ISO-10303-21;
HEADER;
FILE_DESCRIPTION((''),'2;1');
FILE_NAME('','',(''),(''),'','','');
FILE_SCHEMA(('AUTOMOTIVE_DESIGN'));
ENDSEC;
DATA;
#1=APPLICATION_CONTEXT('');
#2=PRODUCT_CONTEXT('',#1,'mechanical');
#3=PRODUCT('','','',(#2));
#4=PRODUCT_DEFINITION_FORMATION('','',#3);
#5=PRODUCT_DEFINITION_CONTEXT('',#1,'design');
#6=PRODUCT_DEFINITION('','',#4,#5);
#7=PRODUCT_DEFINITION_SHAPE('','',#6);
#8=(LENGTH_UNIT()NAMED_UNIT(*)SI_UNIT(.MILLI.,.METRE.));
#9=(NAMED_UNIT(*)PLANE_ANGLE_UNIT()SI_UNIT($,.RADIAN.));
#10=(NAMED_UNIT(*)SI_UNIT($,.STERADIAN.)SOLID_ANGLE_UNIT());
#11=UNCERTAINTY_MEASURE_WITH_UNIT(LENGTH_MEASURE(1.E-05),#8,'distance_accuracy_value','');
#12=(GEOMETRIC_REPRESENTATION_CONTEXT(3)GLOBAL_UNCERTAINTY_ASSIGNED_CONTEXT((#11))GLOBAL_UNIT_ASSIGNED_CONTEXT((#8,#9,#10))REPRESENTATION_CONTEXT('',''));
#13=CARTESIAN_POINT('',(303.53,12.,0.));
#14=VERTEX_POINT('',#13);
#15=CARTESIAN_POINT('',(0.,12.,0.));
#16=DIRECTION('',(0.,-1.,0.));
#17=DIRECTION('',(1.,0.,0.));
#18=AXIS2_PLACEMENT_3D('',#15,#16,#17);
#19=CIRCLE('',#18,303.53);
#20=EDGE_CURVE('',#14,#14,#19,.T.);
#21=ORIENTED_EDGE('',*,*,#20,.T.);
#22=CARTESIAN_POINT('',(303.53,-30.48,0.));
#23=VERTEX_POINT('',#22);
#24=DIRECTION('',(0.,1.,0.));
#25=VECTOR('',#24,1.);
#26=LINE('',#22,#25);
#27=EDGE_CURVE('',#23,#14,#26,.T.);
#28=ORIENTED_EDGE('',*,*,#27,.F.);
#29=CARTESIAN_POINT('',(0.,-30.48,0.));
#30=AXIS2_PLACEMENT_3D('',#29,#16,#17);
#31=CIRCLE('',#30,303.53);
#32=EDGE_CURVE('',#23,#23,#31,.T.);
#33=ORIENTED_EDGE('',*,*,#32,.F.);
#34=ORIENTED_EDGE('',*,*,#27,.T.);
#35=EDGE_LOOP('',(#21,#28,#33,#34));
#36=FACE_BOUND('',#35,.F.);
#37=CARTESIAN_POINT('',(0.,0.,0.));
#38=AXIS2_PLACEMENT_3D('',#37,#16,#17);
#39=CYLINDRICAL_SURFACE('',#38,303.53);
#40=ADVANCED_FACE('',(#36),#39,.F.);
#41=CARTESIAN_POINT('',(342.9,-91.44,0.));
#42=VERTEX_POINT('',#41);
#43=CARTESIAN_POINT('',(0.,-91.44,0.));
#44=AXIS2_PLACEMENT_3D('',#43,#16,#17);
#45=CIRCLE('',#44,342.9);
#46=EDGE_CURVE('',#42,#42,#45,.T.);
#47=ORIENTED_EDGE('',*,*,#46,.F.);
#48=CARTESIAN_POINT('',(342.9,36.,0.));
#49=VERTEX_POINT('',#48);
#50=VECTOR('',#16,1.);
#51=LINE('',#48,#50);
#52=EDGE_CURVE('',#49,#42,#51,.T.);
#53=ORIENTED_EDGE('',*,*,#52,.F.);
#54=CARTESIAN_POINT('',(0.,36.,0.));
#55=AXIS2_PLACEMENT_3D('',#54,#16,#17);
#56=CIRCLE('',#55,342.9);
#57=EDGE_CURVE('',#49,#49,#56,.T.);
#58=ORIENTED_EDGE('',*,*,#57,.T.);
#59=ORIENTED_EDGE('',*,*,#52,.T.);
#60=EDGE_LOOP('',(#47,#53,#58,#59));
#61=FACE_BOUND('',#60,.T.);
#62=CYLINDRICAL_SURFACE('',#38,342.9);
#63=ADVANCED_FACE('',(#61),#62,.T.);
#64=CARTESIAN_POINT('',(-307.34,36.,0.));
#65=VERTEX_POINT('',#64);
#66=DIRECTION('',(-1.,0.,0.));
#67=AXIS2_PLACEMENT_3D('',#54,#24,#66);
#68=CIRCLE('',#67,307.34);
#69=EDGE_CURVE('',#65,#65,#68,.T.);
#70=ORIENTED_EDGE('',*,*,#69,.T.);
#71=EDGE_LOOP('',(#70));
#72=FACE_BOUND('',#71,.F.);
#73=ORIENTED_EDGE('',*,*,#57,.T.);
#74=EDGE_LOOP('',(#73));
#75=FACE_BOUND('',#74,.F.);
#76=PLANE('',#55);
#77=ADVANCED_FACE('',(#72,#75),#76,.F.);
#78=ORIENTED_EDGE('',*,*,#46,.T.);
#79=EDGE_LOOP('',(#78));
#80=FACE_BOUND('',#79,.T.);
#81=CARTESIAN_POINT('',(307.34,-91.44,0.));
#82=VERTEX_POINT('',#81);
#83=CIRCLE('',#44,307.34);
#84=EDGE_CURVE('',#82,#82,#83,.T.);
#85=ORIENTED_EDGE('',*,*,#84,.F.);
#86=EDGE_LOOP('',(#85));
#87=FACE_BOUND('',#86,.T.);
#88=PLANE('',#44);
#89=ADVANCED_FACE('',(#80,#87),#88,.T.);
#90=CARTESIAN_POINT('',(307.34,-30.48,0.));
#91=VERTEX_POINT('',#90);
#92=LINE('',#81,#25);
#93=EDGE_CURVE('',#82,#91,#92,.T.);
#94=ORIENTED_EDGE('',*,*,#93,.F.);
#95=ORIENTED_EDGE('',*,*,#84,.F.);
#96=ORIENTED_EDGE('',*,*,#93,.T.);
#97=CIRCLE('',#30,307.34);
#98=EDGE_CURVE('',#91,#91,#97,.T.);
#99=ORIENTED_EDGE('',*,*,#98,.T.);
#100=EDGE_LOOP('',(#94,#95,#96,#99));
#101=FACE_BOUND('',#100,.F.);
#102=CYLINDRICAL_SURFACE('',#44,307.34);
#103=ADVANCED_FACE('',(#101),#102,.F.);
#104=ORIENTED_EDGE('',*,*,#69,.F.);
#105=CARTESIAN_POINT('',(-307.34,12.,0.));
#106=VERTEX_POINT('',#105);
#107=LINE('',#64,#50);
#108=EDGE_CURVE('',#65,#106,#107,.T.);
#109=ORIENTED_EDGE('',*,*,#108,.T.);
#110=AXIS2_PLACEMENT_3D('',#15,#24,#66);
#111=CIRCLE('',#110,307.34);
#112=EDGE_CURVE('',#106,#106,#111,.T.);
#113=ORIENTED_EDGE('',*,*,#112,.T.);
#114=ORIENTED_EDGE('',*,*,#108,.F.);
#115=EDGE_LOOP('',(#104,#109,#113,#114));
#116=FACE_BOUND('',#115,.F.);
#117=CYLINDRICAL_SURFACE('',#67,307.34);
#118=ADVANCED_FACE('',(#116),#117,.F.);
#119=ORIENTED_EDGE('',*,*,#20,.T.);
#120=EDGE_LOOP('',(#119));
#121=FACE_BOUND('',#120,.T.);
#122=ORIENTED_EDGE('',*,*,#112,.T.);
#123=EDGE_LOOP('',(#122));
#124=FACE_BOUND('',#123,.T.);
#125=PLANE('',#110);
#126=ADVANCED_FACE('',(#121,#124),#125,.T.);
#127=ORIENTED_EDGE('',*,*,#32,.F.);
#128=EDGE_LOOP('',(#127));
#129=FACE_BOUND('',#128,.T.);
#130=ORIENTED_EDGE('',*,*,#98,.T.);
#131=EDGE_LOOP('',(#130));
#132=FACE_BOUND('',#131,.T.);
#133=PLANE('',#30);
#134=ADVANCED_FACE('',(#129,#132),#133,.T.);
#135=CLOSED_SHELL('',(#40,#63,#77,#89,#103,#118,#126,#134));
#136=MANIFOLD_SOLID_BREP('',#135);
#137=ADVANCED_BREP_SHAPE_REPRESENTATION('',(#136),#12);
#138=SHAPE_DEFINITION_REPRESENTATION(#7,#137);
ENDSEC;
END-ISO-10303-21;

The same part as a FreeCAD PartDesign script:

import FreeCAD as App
import Part
import Sketcher

V = App.Vector
Q = App.Units.Quantity

doc = App.newDocument("Part")
body = doc.addObject("PartDesign::Body", "Body")

# Sketch on XZ plane
sketch1 = body.newObject("Sketcher::SketchObject", "Sketch")
sketch1.AttachmentSupport = (doc.getObject("XZ_Plane"), [""])
sketch1.MapMode = "FlatFace"
sketch1.addGeometry([
    Part.Circle(V(0, 0, 0), V(0, 0, 1), 343),
    Part.Circle(V(0, 0, 0), V(0, 0, 1), 304),
], False)
sketch1.addConstraint([
    Sketcher.Constraint("Coincident", 0, 3, -1, 1),
    Sketcher.Constraint("Coincident", 1, 3, -1, 1),
    Sketcher.Constraint("Diameter", 0, Q("27 in")),
    Sketcher.Constraint("Diameter", 1, Q("23.9 in")),
])
pad1 = body.newObject("PartDesign::Pad", "Pad")
pad1.Profile = sketch1
pad1.Type = "TwoLengths"
pad1.Length = Q("3.6 in")
pad1.Length2 = 36

# Sketch on XZ plane
sketch2 = body.newObject("Sketcher::SketchObject", "Sketch001")
sketch2.AttachmentSupport = (doc.getObject("XZ_Plane"), [""])
sketch2.MapMode = "FlatFace"
sketch2.AttachmentOffset = App.Placement(V(0, 0, 3.6 * 25.4), App.Rotation())
sketch2.addGeometry([
    Part.Circle(V(0, 0, 0), V(0, 0, 1), 307),
    Part.Circle(V(0, 0, 0), V(0, 0, 1), 304),
], False)
sketch2.addConstraint([
    Sketcher.Constraint("Coincident", 0, 3, -1, 1),
    Sketcher.Constraint("Coincident", 1, 3, -1, 1),
    Sketcher.Constraint("Diameter", 0, Q("24.2 in")),
    Sketcher.Constraint("Diameter", 1, Q("23.9 in")),
])
pocket1 = body.newObject("PartDesign::Pocket", "Pocket")
pocket1.Profile = sketch2
pocket1.Length = Q("2.4 in")

# Sketch on XZ plane
sketch3 = body.newObject("Sketcher::SketchObject", "Sketch002")
sketch3.AttachmentSupport = (doc.getObject("XZ_Plane"), [""])
sketch3.MapMode = "FlatFace"
sketch3.AttachmentOffset = App.Placement(V(0, 0, -36), App.Rotation())
sketch3.addGeometry([
    Part.Circle(V(0, 0, 0), V(0, 0, 1), 307),
    Part.Circle(V(0, 0, 0), V(0, 0, 1), 304),
], False)
sketch3.addConstraint([
    Sketcher.Constraint("Coincident", 0, 3, -1, 1),
    Sketcher.Constraint("Coincident", 1, 3, -1, 1),
    Sketcher.Constraint("Diameter", 0, Q("24.2 in")),
    Sketcher.Constraint("Diameter", 1, Q("23.9 in")),
])
pocket2 = body.newObject("PartDesign::Pocket", "Pocket001")
pocket2.Profile = sketch3
pocket2.Length = 24
pocket2.Reversed = True

doc.recompute()
